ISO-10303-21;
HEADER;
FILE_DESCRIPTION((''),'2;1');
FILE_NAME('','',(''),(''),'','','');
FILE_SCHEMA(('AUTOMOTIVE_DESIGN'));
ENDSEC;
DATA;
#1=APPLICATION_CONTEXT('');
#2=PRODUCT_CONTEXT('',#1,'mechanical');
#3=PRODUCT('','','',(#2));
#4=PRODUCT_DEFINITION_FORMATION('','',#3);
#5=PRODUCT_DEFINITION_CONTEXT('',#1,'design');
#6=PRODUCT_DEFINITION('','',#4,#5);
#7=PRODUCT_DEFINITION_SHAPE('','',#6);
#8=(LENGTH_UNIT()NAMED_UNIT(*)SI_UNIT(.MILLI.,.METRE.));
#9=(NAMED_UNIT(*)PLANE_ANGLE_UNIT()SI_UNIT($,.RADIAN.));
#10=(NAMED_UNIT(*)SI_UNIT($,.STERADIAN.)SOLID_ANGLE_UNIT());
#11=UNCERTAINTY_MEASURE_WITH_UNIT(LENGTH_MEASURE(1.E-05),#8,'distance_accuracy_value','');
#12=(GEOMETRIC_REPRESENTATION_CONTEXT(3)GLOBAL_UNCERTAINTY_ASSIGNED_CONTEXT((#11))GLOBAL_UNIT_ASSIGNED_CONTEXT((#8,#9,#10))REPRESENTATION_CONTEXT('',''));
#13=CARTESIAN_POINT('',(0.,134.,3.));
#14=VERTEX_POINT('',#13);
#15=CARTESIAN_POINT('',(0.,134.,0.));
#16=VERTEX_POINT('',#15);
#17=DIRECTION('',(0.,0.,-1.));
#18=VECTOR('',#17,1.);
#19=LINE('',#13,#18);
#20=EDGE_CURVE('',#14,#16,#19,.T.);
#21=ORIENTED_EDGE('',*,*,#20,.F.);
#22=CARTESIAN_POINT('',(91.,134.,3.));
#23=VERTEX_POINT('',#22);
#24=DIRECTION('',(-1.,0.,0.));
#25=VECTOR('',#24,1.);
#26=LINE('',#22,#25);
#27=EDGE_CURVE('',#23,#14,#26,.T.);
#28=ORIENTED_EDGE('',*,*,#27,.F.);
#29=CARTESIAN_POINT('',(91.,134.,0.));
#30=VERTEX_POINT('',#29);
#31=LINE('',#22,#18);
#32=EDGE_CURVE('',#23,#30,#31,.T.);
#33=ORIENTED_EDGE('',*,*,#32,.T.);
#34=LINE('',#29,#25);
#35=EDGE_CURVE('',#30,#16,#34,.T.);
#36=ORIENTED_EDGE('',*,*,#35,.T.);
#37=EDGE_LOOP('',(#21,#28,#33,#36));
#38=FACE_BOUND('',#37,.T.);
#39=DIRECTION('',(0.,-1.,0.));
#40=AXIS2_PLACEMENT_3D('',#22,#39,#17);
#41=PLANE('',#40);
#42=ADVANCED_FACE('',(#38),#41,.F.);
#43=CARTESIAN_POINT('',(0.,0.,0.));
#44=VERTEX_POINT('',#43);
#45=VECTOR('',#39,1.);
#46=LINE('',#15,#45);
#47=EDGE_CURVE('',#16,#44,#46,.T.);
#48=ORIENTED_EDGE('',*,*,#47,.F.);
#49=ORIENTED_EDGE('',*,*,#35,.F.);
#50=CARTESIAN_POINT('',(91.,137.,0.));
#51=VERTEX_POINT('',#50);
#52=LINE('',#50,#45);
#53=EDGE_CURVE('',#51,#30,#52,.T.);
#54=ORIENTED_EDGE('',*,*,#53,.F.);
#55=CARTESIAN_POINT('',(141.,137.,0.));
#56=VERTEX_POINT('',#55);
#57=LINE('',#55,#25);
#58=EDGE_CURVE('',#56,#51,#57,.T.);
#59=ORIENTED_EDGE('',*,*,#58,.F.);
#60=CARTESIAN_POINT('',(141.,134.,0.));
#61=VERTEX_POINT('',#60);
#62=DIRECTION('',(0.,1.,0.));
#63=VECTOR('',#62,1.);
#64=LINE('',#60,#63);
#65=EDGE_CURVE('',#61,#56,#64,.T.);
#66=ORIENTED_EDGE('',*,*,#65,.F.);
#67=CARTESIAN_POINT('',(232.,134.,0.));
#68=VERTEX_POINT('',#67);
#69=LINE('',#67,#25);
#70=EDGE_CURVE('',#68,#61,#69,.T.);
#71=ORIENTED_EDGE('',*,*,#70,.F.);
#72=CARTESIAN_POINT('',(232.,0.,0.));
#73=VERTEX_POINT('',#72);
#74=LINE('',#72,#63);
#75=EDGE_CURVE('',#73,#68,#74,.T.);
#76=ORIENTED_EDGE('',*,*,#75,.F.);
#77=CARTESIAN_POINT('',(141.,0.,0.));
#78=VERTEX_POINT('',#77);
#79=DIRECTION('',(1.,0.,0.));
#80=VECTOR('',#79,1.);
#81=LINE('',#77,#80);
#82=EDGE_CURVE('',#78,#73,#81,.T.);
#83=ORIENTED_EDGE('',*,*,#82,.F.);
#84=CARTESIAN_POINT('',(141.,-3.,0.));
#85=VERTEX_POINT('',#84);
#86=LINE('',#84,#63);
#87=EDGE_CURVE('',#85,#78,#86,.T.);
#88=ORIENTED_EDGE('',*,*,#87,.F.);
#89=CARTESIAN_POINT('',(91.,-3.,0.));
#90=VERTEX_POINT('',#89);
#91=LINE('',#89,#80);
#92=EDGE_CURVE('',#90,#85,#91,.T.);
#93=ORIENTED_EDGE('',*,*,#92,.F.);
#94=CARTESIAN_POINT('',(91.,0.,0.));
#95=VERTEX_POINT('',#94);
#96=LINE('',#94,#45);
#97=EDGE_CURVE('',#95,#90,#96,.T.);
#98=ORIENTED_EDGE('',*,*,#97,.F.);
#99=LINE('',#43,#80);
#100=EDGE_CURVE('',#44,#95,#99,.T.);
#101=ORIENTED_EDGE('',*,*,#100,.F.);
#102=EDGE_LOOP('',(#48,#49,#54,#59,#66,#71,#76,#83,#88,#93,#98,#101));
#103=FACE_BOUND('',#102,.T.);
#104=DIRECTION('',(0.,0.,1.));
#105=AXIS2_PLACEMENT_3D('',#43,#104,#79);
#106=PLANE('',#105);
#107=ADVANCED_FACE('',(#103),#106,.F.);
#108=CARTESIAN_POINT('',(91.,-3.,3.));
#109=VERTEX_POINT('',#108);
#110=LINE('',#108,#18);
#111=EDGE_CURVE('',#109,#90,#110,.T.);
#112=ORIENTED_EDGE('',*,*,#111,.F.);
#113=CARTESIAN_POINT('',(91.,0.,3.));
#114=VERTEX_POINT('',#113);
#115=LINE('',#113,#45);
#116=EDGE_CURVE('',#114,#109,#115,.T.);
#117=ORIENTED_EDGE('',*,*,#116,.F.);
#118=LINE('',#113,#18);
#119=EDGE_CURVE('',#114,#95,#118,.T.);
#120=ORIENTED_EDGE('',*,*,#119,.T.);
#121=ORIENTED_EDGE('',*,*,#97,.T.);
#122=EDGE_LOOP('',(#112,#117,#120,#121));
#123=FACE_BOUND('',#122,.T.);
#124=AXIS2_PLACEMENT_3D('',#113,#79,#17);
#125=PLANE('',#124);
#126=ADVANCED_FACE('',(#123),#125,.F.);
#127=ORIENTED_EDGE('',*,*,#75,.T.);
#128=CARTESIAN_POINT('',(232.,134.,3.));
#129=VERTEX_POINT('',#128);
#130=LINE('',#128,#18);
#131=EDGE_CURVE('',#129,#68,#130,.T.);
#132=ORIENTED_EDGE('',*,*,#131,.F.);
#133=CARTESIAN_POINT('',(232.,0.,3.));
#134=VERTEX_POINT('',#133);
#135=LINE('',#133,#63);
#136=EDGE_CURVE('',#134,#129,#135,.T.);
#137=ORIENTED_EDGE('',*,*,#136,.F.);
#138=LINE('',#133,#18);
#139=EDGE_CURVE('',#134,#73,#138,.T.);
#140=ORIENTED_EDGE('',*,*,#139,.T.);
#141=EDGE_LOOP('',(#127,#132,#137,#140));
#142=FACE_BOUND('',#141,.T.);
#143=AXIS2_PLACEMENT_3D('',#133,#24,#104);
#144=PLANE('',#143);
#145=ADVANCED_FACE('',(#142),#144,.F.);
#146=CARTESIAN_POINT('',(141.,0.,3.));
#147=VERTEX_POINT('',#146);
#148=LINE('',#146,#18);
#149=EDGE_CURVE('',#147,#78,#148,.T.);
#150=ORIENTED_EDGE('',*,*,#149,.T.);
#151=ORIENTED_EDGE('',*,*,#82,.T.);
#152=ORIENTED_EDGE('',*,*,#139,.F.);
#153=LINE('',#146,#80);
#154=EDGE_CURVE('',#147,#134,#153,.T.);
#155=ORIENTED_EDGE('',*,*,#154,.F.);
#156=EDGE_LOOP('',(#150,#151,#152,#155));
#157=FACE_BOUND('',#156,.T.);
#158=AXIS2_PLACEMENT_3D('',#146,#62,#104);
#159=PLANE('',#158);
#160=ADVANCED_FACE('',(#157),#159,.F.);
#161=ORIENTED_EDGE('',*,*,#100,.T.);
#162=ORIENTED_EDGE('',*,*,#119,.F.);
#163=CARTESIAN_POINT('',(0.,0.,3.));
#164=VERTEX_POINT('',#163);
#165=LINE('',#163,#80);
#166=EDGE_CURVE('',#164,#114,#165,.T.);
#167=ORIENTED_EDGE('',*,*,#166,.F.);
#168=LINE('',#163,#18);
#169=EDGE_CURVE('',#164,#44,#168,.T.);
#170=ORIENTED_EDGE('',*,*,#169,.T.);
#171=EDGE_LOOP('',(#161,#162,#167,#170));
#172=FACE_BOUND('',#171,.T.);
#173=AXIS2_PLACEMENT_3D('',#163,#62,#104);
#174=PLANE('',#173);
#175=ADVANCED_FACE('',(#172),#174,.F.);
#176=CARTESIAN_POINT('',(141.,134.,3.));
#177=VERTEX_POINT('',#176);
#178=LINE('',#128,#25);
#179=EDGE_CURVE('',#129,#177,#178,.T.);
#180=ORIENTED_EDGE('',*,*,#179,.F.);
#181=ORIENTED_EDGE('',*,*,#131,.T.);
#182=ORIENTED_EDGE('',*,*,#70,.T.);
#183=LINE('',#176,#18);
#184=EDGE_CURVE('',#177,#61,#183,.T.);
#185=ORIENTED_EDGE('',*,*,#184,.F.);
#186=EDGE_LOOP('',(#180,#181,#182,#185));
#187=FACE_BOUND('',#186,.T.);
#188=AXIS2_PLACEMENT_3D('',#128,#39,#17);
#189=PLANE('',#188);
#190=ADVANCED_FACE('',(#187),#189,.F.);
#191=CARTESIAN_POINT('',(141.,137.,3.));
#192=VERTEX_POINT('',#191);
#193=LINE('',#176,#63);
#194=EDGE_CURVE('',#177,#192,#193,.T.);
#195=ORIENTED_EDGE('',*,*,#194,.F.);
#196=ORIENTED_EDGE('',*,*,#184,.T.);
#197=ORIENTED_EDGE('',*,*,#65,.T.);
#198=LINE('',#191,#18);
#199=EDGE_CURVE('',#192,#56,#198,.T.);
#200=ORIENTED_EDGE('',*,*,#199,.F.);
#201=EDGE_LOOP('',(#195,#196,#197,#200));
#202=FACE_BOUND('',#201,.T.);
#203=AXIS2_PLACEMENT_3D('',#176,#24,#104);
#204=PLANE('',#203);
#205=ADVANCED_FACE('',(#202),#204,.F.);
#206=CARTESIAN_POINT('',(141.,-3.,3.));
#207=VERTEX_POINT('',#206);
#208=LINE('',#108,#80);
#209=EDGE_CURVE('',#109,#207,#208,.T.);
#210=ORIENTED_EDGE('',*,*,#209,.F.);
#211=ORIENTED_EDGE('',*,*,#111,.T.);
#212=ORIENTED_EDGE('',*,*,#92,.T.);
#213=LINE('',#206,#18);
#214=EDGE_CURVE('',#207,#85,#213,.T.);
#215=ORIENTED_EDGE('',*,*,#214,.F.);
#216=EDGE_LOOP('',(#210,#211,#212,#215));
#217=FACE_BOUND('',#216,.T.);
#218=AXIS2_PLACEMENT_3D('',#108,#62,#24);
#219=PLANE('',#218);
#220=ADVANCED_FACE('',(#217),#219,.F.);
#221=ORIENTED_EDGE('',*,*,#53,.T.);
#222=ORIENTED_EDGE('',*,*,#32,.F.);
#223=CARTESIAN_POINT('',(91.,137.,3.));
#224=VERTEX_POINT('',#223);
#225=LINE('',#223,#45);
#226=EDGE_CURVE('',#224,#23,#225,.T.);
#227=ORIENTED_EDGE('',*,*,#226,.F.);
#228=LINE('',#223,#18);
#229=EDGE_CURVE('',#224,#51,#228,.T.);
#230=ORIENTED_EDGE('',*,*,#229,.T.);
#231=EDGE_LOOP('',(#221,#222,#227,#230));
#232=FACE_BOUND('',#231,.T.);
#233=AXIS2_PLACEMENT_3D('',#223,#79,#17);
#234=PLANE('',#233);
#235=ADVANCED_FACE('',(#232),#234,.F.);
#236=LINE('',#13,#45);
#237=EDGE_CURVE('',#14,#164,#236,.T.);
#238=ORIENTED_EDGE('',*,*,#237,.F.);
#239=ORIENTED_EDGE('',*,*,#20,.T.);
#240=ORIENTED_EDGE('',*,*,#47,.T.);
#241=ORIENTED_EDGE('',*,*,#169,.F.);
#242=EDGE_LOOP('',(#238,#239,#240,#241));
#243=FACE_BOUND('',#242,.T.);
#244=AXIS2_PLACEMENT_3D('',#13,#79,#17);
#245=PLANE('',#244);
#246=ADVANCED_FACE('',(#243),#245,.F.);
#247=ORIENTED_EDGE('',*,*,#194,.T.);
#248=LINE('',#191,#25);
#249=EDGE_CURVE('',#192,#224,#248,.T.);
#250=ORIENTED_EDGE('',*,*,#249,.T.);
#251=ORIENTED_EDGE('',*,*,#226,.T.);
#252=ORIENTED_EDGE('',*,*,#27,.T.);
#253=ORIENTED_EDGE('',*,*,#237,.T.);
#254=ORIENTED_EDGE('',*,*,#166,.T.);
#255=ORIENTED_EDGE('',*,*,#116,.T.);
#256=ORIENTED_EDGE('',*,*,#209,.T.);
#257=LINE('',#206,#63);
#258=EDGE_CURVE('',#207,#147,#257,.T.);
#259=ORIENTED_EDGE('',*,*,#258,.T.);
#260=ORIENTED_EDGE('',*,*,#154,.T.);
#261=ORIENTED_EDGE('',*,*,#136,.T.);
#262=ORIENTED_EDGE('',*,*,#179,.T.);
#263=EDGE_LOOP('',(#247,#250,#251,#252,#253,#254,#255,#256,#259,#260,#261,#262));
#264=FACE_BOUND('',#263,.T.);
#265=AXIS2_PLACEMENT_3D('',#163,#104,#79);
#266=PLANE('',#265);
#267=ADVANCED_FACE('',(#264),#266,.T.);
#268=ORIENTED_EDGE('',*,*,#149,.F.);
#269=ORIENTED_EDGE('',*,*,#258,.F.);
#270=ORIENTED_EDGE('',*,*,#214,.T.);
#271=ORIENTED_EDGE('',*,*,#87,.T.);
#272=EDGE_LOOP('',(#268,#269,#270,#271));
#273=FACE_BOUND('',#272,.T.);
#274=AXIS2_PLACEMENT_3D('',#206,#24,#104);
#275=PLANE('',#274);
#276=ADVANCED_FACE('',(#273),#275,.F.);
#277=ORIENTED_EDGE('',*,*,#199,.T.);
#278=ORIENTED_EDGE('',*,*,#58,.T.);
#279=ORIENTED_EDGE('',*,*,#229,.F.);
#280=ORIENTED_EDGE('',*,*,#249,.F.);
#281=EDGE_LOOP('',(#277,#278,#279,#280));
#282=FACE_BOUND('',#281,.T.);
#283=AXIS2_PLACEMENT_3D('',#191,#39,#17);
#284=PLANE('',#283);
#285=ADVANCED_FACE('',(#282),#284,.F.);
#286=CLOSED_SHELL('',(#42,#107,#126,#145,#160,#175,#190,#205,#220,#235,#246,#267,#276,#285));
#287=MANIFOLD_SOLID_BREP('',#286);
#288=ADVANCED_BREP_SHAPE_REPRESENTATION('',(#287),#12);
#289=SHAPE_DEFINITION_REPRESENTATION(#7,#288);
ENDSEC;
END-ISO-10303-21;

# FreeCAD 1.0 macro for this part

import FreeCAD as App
import Part
import Sketcher
from FreeCAD import Vector
Q = App.Units.Quantity

doc = App.newDocument("Part")
body = doc.addObject("PartDesign::Body", "Body")

sketch1 = body.newObject("Sketcher::SketchObject", "Sketch")
sketch1.AttachmentSupport = (doc.getObject("XY_Plane"), [""])
sketch1.MapMode = "FlatFace"
sketch1.addGeometry([
    Part.LineSegment(Vector(0, 0, 0), Vector(91, 0, 0)),
    Part.LineSegment(Vector(91, 0, 0), Vector(91, -3, 0)),
    Part.LineSegment(Vector(91, -3, 0), Vector(141, -3, 0)),
    Part.LineSegment(Vector(141, -3, 0), Vector(141, 0, 0)),
    Part.LineSegment(Vector(141, 0, 0), Vector(232, 0, 0)),
    Part.LineSegment(Vector(232, 0, 0), Vector(232, 134, 0)),
    Part.LineSegment(Vector(232, 134, 0), Vector(141, 134, 0)),
    Part.LineSegment(Vector(141, 134, 0), Vector(141, 137, 0)),
    Part.LineSegment(Vector(141, 137, 0), Vector(91, 137, 0)),
    Part.LineSegment(Vector(91, 137, 0), Vector(91, 134, 0)),
    Part.LineSegment(Vector(91, 134, 0), Vector(0, 134, 0)),
    Part.LineSegment(Vector(0, 134, 0), Vector(0, 0, 0)),
], False)
sketch1.addConstraint([
    Sketcher.Constraint("Coincident", 0, 2, 1, 1),
    Sketcher.Constraint("Coincident", 1, 2, 2, 1),
    Sketcher.Constraint("Coincident", 2, 2, 3, 1),
    Sketcher.Constraint("Coincident", 3, 2, 4, 1),
    Sketcher.Constraint("Coincident", 4, 2, 5, 1),
    Sketcher.Constraint("Coincident", 5, 2, 6, 1),
    Sketcher.Constraint("Coincident", 6, 2, 7, 1),
    Sketcher.Constraint("Coincident", 7, 2, 8, 1),
    Sketcher.Constraint("Coincident", 8, 2, 9, 1),
    Sketcher.Constraint("Coincident", 9, 2, 10, 1),
    Sketcher.Constraint("Coincident", 10, 2, 11, 1),
    Sketcher.Constraint("Coincident", 11, 2, 0, 1),
    Sketcher.Constraint("Horizontal", 0),
    Sketcher.Constraint("Vertical", 1),
    Sketcher.Constraint("Horizontal", 2),
    Sketcher.Constraint("Vertical", 3),
    Sketcher.Constraint("Horizontal", 4),
    Sketcher.Constraint("Vertical", 5),
    Sketcher.Constraint("Horizontal", 6),
    Sketcher.Constraint("Vertical", 7),
    Sketcher.Constraint("Horizontal", 8),
    Sketcher.Constraint("Vertical", 9),
    Sketcher.Constraint("Horizontal", 10),
    Sketcher.Constraint("Vertical", 11),
    Sketcher.Constraint("Coincident", 11, 2, -1, 1),
    Sketcher.Constraint("PointOnObject", 3, 2, -1),
    Sketcher.Constraint("Horizontal", 6, 2, 9, 2),
    Sketcher.Constraint("Vertical", 3, 2, 6, 2),
    Sketcher.Constraint("Vertical", 1, 2, 8, 2),
    Sketcher.Constraint("Equal", 0, 4),
    Sketcher.Constraint("Equal", 3, 7),
    Sketcher.Constraint("DistanceX", 0, 1, 0, 2, Q("91 mm")),
    Sketcher.Constraint("DistanceX", 2, 1, 2, 2, Q("50 mm")),
    Sketcher.Constraint("DistanceY", 1, 2, 1, 1, Q("3 mm")),
    Sketcher.Constraint("DistanceY", 5, 1, 5, 2, Q("134 mm")),
])
pad1 = body.newObject("PartDesign::Pad", "Pad")
pad1.Profile = sketch1
pad1.Length = 3

doc.recompute()
